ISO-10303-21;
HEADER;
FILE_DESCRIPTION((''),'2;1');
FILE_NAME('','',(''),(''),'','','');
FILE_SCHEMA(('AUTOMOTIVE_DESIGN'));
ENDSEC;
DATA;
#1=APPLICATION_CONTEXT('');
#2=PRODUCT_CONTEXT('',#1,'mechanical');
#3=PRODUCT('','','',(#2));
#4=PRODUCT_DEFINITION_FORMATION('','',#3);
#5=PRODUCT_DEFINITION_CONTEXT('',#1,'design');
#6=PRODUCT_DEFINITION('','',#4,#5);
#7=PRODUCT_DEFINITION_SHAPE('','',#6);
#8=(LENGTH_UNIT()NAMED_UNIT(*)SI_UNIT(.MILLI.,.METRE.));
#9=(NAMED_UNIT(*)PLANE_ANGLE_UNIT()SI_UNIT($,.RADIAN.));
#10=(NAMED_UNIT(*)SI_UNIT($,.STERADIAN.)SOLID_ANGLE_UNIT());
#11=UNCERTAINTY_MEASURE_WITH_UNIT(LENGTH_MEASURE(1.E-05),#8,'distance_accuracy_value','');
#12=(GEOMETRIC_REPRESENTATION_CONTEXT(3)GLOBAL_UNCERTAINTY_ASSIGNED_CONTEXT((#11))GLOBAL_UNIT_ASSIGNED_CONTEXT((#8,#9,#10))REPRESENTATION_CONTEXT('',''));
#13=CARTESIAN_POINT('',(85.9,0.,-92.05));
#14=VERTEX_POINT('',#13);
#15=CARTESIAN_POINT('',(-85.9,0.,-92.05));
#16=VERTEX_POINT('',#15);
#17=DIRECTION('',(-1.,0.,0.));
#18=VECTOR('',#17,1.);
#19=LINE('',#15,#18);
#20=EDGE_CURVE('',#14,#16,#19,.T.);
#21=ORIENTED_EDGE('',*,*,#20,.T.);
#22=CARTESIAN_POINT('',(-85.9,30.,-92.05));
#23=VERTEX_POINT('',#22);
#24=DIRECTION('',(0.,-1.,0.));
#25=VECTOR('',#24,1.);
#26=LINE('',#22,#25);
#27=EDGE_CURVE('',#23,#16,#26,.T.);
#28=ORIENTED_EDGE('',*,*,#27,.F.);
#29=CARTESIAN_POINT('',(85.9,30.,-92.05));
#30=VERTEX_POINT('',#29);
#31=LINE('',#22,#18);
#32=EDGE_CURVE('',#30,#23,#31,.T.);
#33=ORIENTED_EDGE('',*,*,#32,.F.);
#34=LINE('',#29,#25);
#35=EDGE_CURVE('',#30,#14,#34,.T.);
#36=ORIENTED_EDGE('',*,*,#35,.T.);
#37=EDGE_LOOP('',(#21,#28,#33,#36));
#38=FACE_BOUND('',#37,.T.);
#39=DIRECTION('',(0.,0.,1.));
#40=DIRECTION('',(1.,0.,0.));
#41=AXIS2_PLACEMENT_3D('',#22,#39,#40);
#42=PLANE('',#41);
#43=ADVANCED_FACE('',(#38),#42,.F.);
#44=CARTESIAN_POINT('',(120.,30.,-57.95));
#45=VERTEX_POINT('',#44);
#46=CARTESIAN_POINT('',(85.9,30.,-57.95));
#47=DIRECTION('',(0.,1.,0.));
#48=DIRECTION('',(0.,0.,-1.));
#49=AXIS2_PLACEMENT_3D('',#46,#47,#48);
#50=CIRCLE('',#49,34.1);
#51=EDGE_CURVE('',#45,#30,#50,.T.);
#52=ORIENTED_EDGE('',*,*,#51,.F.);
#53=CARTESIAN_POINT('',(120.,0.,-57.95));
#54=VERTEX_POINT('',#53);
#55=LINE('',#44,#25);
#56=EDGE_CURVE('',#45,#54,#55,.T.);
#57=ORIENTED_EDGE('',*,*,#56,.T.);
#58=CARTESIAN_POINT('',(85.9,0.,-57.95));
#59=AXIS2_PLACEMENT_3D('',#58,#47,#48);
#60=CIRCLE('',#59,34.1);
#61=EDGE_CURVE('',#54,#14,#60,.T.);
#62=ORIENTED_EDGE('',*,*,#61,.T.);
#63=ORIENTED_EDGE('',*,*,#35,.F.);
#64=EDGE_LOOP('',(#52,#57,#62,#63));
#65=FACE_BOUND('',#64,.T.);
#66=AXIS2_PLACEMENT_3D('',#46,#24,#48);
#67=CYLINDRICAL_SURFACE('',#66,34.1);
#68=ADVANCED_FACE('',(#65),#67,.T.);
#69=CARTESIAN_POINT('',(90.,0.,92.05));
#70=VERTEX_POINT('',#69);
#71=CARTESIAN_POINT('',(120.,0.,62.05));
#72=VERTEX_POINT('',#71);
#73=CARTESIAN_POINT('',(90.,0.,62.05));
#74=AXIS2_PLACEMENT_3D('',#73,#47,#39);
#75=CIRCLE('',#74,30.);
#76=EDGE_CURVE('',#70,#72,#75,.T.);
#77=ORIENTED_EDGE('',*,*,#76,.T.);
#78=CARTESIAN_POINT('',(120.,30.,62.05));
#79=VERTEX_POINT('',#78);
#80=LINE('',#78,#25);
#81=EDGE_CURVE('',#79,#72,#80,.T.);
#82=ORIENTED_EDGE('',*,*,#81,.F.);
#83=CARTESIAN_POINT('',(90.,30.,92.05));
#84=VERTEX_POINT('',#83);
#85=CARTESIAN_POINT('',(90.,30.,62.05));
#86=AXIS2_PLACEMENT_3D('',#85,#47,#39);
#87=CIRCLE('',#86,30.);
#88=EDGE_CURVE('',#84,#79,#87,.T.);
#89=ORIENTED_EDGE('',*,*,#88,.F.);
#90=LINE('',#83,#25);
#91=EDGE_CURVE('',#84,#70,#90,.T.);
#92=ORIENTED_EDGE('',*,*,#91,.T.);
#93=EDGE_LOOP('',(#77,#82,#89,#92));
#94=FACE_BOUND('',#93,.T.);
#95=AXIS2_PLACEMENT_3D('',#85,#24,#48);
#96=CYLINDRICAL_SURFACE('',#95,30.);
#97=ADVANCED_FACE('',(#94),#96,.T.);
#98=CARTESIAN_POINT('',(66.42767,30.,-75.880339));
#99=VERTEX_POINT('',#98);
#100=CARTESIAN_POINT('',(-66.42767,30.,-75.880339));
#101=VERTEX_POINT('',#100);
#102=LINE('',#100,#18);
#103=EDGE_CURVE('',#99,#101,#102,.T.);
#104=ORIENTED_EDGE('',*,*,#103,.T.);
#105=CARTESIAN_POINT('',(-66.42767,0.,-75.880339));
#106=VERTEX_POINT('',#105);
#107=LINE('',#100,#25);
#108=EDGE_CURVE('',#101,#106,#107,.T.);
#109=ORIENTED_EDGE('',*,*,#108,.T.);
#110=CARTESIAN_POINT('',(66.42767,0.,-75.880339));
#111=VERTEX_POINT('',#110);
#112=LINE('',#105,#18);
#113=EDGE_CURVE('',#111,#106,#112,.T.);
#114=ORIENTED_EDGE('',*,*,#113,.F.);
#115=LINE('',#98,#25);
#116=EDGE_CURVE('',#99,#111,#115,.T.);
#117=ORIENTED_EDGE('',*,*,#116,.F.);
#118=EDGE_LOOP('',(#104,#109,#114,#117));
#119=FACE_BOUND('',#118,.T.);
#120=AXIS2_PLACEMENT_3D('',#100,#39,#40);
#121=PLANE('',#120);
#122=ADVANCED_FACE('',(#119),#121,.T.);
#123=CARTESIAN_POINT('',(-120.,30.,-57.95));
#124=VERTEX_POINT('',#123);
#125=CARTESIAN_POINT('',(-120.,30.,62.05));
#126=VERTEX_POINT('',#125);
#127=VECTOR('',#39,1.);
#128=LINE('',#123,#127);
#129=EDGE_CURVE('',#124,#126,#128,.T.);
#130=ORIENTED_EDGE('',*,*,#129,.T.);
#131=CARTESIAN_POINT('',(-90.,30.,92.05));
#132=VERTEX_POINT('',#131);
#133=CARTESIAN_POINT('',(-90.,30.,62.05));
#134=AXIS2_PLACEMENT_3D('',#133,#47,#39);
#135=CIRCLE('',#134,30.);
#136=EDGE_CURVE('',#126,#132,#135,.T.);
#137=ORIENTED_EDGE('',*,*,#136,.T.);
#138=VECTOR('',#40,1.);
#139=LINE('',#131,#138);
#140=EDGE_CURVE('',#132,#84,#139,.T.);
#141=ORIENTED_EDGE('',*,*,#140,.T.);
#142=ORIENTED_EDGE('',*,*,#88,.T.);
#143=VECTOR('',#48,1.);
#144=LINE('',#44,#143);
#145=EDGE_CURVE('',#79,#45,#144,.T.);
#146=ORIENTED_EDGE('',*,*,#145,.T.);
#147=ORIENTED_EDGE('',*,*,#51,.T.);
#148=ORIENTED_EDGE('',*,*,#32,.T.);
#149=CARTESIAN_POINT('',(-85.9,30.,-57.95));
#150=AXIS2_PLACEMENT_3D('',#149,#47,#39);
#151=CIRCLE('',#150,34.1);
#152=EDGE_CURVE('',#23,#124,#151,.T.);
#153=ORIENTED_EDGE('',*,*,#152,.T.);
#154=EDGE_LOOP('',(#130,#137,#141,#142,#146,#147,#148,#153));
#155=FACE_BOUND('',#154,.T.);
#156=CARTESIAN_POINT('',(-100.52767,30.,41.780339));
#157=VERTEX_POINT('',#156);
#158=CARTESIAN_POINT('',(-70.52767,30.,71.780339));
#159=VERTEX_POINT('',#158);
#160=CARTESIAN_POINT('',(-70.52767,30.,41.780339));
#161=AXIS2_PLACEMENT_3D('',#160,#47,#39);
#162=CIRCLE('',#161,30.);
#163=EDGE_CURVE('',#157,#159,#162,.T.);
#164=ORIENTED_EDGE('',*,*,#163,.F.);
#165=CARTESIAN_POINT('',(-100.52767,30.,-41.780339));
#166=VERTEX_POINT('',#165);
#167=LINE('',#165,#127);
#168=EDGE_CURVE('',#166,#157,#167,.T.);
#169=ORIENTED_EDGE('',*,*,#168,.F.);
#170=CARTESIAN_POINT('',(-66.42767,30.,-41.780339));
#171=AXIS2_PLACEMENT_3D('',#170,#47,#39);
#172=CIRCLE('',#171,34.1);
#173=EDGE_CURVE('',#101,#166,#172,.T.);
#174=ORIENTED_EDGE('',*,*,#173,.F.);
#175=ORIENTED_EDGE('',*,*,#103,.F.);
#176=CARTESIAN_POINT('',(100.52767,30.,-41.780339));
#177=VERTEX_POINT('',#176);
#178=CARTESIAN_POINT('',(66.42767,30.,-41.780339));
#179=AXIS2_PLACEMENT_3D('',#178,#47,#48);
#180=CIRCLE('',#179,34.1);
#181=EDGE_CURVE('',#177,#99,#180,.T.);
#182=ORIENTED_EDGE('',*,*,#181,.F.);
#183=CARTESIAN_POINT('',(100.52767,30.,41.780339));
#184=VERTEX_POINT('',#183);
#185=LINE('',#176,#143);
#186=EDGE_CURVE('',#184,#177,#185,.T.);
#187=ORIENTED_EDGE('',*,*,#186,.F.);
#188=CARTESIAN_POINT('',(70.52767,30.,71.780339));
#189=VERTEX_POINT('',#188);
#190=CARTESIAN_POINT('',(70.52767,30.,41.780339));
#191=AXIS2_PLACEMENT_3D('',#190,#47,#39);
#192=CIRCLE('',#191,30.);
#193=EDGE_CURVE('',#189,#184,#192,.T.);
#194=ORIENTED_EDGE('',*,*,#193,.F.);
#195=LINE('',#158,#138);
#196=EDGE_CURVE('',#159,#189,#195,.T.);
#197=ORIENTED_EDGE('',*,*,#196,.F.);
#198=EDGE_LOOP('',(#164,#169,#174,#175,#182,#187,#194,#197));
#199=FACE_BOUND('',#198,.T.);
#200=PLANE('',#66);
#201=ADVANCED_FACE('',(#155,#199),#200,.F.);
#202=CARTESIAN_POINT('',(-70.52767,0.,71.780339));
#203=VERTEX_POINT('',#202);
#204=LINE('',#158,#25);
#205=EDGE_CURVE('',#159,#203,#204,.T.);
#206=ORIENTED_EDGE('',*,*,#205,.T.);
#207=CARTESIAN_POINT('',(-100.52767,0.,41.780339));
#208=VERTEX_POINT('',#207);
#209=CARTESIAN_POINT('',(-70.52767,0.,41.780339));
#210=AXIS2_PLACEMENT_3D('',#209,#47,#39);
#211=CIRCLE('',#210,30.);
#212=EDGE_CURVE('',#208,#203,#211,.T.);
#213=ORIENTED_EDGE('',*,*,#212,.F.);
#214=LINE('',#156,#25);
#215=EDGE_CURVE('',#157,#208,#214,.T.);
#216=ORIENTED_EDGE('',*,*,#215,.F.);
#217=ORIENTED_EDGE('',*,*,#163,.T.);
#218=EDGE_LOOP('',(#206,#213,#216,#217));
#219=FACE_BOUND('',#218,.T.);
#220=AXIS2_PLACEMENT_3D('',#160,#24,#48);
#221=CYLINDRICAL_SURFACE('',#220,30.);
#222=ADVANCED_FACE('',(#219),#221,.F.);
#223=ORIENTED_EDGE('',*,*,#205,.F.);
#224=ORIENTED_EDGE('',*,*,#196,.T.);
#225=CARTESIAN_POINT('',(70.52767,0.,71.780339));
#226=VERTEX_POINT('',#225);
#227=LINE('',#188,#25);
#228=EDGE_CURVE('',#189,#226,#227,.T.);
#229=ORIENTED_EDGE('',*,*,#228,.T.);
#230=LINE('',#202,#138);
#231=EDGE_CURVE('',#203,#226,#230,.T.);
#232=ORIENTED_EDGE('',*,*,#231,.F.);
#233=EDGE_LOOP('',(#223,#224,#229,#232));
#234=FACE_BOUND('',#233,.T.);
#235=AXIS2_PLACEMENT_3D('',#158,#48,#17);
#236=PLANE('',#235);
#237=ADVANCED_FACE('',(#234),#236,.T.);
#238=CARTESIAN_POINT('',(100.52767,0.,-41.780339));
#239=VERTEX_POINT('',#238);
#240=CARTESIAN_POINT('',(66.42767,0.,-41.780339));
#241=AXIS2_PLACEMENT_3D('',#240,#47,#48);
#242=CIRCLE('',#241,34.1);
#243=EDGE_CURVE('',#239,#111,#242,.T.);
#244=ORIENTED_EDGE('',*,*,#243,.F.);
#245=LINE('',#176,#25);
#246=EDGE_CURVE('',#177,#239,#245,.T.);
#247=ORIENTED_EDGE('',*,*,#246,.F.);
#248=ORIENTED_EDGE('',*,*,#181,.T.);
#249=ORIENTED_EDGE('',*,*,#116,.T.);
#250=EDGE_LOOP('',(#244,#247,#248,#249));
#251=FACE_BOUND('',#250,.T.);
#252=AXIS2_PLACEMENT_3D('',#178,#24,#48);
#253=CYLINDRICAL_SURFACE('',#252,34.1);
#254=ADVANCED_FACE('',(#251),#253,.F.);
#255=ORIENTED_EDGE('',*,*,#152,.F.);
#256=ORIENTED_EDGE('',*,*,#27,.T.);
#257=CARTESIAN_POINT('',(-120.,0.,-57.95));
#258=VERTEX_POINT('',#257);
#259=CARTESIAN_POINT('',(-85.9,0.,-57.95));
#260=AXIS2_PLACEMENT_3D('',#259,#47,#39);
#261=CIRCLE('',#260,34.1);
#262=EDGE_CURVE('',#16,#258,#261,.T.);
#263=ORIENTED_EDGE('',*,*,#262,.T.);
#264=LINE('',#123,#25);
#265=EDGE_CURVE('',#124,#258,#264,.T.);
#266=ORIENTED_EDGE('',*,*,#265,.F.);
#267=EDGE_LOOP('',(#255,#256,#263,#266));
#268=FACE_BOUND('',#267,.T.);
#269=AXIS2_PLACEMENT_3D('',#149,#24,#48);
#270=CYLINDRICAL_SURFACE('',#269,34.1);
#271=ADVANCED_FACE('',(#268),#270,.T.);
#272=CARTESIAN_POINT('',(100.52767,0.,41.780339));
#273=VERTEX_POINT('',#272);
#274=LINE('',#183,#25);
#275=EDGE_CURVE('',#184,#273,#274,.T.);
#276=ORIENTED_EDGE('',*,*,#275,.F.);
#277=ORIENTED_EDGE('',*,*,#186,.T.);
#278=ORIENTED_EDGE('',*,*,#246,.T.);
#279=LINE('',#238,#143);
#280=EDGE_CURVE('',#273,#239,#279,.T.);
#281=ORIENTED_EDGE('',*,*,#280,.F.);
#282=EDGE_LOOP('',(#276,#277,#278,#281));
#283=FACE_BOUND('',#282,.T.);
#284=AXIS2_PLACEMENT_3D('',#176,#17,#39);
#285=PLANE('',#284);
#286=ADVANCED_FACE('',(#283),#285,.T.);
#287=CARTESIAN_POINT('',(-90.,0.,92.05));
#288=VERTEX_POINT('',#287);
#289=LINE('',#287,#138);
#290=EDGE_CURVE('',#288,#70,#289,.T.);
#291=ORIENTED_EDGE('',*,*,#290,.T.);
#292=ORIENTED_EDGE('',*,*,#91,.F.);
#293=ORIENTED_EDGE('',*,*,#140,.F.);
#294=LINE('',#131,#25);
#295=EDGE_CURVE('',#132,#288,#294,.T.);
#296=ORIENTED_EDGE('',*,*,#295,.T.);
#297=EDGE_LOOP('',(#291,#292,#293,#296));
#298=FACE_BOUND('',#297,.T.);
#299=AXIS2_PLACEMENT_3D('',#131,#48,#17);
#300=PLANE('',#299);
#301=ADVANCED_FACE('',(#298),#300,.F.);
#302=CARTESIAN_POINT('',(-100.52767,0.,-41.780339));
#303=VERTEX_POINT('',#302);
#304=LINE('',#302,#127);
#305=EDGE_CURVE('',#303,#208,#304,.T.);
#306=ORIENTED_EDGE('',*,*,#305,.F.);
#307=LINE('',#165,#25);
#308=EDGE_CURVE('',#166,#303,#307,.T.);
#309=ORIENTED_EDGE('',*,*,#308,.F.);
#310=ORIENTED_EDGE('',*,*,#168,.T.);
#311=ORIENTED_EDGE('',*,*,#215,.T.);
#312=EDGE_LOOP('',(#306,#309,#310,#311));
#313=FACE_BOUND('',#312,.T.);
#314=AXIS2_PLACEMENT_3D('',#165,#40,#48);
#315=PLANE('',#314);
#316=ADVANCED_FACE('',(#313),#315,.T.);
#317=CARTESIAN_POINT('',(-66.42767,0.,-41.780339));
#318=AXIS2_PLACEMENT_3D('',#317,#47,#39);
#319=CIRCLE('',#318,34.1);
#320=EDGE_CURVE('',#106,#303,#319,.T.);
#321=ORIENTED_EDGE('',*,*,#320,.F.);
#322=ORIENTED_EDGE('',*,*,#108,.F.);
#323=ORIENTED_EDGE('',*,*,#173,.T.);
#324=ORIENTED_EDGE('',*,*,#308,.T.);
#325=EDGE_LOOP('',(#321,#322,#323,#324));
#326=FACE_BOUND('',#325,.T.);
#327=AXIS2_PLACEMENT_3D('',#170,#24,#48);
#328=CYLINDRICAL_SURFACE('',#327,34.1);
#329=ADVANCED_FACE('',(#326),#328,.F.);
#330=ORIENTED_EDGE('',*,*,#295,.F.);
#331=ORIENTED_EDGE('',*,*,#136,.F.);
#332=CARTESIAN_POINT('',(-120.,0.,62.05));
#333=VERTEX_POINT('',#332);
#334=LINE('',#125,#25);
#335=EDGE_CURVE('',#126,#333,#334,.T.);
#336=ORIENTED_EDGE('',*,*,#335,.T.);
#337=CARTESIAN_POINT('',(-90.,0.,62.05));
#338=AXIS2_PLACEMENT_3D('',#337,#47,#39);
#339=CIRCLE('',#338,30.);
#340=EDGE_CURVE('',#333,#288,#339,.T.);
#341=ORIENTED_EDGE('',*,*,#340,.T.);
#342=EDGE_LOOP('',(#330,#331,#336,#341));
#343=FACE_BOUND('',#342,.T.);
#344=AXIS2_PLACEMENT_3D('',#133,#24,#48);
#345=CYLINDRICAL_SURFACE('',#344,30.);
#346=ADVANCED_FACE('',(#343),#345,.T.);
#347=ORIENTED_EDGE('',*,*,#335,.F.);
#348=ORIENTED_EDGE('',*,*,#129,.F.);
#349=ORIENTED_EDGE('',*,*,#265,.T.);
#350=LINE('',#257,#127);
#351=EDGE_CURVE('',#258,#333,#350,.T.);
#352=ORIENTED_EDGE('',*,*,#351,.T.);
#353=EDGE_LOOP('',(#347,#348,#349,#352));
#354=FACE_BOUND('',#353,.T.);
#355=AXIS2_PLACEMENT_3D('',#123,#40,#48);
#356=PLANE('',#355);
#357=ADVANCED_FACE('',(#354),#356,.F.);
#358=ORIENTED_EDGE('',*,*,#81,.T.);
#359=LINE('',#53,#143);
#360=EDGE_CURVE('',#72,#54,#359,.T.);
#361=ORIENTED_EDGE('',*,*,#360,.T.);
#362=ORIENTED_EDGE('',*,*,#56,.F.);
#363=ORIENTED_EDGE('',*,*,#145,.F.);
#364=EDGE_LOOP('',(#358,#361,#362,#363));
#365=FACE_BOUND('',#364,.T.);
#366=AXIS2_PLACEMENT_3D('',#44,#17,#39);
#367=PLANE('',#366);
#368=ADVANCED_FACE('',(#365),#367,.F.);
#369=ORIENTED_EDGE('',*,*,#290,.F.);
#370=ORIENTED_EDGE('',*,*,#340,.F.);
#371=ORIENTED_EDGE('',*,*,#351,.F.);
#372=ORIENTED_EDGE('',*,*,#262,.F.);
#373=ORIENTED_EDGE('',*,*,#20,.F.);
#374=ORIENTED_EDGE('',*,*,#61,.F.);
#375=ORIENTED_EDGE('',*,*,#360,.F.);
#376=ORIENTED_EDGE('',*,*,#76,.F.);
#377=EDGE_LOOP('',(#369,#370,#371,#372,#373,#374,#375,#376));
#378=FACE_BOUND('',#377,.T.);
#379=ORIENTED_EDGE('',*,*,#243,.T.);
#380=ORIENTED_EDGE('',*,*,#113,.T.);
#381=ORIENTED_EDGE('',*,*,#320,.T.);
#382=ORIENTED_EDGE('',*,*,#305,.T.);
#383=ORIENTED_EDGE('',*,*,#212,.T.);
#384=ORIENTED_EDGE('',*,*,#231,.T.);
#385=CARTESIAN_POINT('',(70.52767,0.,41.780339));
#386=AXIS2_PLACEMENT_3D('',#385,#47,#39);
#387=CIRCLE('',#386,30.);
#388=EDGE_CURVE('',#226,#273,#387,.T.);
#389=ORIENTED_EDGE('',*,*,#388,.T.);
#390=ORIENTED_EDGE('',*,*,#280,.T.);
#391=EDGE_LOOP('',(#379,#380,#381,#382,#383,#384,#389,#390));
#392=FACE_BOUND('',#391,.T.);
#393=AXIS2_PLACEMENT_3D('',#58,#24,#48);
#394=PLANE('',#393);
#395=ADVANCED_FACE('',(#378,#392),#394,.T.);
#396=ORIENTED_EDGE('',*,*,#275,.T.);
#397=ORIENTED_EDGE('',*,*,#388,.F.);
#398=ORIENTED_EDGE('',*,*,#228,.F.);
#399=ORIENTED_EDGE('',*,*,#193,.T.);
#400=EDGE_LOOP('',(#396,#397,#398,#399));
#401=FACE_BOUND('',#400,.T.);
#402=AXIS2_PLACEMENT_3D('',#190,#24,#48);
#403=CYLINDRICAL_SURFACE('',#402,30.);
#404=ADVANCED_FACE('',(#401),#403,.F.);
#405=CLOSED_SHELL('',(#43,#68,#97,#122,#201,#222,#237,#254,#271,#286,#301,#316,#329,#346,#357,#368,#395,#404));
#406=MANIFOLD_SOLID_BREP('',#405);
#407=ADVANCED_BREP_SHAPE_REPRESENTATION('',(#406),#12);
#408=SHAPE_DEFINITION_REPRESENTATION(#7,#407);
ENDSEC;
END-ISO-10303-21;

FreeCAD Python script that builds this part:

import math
import FreeCAD as App
import Part
import Sketcher
Q = App.Units.Quantity

doc = App.newDocument("Part")
body = doc.addObject("PartDesign::Body", "Body")

# Sketch on XZ plane
sketch1 = body.newObject("Sketcher::SketchObject", "Sketch")
sketch1.AttachmentSupport = (doc.getObject("XZ_Plane"), [""])
sketch1.MapMode = "FlatFace"
sketch1.addGeometry([
    Part.LineSegment(App.Vector(86, -92, 0), App.Vector(-86, -92, 0)),  # 0
    Part.ArcOfCircle(Part.Circle(App.Vector(-86, -58, 0), App.Vector(0, 0, 1), 34), math.radians(-180), math.radians(-90)),  # 1
    Part.LineSegment(App.Vector(-120, -58, 0), App.Vector(-120, 62, 0)),  # 2
    Part.ArcOfCircle(Part.Circle(App.Vector(-90, 62, 0), App.Vector(0, 0, 1), 30), math.radians(90), math.radians(180)),  # 3
    Part.LineSegment(App.Vector(-90, 92, 0), App.Vector(90, 92, 0)),  # 4
    Part.ArcOfCircle(Part.Circle(App.Vector(90, 62, 0), App.Vector(0, 0, 1), 30), math.radians(0), math.radians(90)),  # 5
    Part.LineSegment(App.Vector(120, 62, 0), App.Vector(120, -58, 0)),  # 6
    Part.ArcOfCircle(Part.Circle(App.Vector(86, -58, 0), App.Vector(0, 0, 1), 34), math.radians(-90), math.radians(0)),  # 7
    Part.LineSegment(App.Vector(-66, -76, 0), App.Vector(66, -76, 0)),  # 8
    Part.ArcOfCircle(Part.Circle(App.Vector(66, -42, 0), App.Vector(0, 0, 1), 34), math.radians(-90), math.radians(0)),  # 9
    Part.LineSegment(App.Vector(101, -42, 0), App.Vector(101, 42, 0)),  # 10
    Part.ArcOfCircle(Part.Circle(App.Vector(71, 42, 0), App.Vector(0, 0, 1), 30), math.radians(0), math.radians(90)),  # 11
    Part.LineSegment(App.Vector(71, 72, 0), App.Vector(-71, 72, 0)),  # 12
    Part.ArcOfCircle(Part.Circle(App.Vector(-71, 42, 0), App.Vector(0, 0, 1), 30), math.radians(90), math.radians(180)),  # 13
    Part.LineSegment(App.Vector(-101, 42, 0), App.Vector(-101, -42, 0)),  # 14
    Part.ArcOfCircle(Part.Circle(App.Vector(-66, -42, 0), App.Vector(0, 0, 1), 34), math.radians(180), math.radians(270)),  # 15
], False)
sketch1.addConstraint([
    Sketcher.Constraint("Tangent", 0, 2, 1, 2),
    Sketcher.Constraint("Tangent", 1, 1, 2, 1),
    Sketcher.Constraint("Tangent", 2, 2, 3, 2),
    Sketcher.Constraint("Tangent", 3, 1, 4, 1),
    Sketcher.Constraint("Tangent", 4, 2, 5, 2),
    Sketcher.Constraint("Tangent", 5, 1, 6, 1),
    Sketcher.Constraint("Tangent", 6, 2, 7, 2),
    Sketcher.Constraint("Tangent", 7, 1, 0, 1),
    Sketcher.Constraint("Tangent", 8, 2, 9, 1),
    Sketcher.Constraint("Tangent", 9, 2, 10, 1),
    Sketcher.Constraint("Tangent", 10, 2, 11, 1),
    Sketcher.Constraint("Tangent", 11, 2, 12, 1),
    Sketcher.Constraint("Tangent", 12, 2, 13, 1),
    Sketcher.Constraint("Tangent", 13, 2, 14, 1),
    Sketcher.Constraint("Tangent", 14, 2, 15, 1),
    Sketcher.Constraint("Tangent", 15, 2, 8, 1),
    Sketcher.Constraint("Horizontal", 0),
    Sketcher.Constraint("Vertical", 2),
    Sketcher.Constraint("Horizontal", 4),
    Sketcher.Constraint("Vertical", 6),
    Sketcher.Constraint("Horizontal", 8),
    Sketcher.Constraint("Vertical", 10),
    Sketcher.Constraint("Horizontal", 12),
    Sketcher.Constraint("Vertical", 14),
    Sketcher.Constraint("Equal", 3, 5),
    Sketcher.Constraint("Equal", 1, 7),
    Sketcher.Constraint("Equal", 7, 9),
    Sketcher.Constraint("Equal", 5, 11),
    Sketcher.Constraint("Equal", 11, 13),
    Sketcher.Constraint("Equal", 9, 15),
    Sketcher.Constraint("Symmetric", 9, 2, 13, 2, -1, 1),
    Sketcher.Constraint("Radius", 3, Q("30 mm")),
    Sketcher.Constraint("Radius", 1, Q("34.1 mm")),
    Sketcher.Constraint("DistanceX", 4, 1, 4, 2, Q("180 mm")),
    Sketcher.Constraint("DistanceY", 2, 1, 2, 2, Q("120 mm")),
    Sketcher.Constraint("DistanceX", 3, 3, -1, 1, Q("90 mm")),
    Sketcher.Constraint("DistanceY", 1, 3, -1, 1, Q("57.95 mm")),
    Sketcher.Constraint("DistanceX", 8, 1, 8, 2, Q("132.855339 mm")),
    Sketcher.Constraint("DistanceY", 10, 1, 10, 2, Q("83.560678 mm")),
])
pad1 = body.newObject("PartDesign::Pad", "Pad")
pad1.Profile = sketch1
pad1.Length = 30
pad1.Reversed = True

doc.recompute()
